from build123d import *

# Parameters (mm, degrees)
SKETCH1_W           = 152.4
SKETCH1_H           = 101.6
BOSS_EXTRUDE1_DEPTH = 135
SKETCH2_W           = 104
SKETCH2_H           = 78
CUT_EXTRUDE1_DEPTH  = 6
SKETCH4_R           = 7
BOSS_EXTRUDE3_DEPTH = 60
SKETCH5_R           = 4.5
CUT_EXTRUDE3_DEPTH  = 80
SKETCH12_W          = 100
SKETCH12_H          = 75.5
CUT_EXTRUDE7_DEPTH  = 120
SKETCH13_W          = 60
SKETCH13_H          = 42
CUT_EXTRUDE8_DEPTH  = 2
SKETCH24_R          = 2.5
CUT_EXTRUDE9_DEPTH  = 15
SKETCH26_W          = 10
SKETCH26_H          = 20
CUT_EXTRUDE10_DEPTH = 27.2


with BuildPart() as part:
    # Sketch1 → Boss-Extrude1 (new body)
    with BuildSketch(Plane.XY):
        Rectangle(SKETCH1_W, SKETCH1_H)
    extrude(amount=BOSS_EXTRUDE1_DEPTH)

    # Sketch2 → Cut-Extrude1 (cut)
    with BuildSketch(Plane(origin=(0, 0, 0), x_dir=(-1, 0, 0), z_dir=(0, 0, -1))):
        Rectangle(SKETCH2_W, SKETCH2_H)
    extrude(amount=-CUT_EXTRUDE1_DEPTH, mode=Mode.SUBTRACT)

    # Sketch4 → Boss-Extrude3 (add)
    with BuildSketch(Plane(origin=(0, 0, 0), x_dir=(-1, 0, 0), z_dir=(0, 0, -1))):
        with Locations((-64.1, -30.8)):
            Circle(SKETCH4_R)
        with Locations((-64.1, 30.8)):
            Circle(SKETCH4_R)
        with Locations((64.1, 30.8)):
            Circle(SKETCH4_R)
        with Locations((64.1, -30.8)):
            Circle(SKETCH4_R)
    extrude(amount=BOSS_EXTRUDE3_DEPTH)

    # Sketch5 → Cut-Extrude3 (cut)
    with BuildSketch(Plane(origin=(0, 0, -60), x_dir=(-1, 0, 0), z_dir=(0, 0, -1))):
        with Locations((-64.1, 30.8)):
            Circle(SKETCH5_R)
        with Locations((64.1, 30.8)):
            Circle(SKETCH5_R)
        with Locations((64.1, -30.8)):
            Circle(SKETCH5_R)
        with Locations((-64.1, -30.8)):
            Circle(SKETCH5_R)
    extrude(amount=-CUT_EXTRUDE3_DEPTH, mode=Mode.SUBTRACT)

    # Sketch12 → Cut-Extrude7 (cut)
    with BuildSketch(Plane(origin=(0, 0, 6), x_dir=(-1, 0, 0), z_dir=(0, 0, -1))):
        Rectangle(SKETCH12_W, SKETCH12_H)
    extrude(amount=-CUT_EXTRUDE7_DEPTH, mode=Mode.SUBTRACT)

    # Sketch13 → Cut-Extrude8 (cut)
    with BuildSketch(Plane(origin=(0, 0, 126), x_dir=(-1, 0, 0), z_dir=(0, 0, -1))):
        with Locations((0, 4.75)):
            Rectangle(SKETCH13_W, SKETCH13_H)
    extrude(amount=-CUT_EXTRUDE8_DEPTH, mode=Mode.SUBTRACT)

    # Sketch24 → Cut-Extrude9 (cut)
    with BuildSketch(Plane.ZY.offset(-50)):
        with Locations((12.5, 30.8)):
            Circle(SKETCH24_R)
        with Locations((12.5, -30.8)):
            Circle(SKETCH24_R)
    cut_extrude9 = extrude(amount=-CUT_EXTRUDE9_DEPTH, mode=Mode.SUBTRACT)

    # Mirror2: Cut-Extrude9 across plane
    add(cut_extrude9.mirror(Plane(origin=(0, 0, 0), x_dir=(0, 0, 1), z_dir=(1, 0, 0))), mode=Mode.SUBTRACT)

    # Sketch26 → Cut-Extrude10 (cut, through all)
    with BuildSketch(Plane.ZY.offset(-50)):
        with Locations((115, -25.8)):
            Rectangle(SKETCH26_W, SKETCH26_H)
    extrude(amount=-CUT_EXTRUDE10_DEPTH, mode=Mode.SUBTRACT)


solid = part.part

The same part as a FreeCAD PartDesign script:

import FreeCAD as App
import Part
import Sketcher

V = App.Vector
Q = App.Units.Quantity


def add_polygon(sketch, points):
    """Adds a closed chain of lines whose ends are joined by coincident constraints."""
    first, n = sketch.GeometryCount, len(points)
    for a, b in zip(points, points[1:] + points[:1]):
        sketch.addGeometry(Part.LineSegment(App.Vector(*a, 0), App.Vector(*b, 0)), False)
    for i in range(n):
        sketch.addConstraint(Sketcher.Constraint("Coincident", first + i, 2, first + (i + 1) % n, 1))

doc = App.newDocument("Part")
body = doc.addObject("PartDesign::Body", "Body")

# Sketch on XY plane
sketch1 = doc.addObject("Sketcher::SketchObject", "Sketch")
body.addObject(sketch1)
sketch1.AttachmentSupport = (doc.XY_Plane, [""])
sketch1.MapMode = "FlatFace"
add_polygon(sketch1, [(-76.2, 50.8), (-76.2, -50.8), (76.2, -50.8), (76.2, 50.8)])  # lines 0-3
sketch1.addConstraint(Sketcher.Constraint("Vertical", 0))
sketch1.addConstraint(Sketcher.Constraint("Horizontal", 1))
sketch1.addConstraint(Sketcher.Constraint("Vertical", 2))
sketch1.addConstraint(Sketcher.Constraint("Horizontal", 3))
sketch1.addConstraint(Sketcher.Constraint("Symmetric", 0, 2, 2, 2, -1, 1))
sketch1.addConstraint(Sketcher.Constraint("DistanceX", 1, 1, 1, 2, Q("152.4 mm")))
sketch1.addConstraint(Sketcher.Constraint("DistanceY", 0, 2, 0, 1, Q("101.6 mm")))
pad1 = doc.addObject("PartDesign::Pad", "Pad")
body.addObject(pad1)
pad1.Profile = sketch1
pad1.Length = 135

# Sketch on XY plane
sketch2 = doc.addObject("Sketcher::SketchObject", "Sketch001")
body.addObject(sketch2)
sketch2.AttachmentSupport = (doc.XY_Plane, [""])
sketch2.MapMode = "FlatFace"
add_polygon(sketch2, [(52, 39), (52, -39), (-52, -39), (-52, 39)])  # lines 0-3
sketch2.addConstraint(Sketcher.Constraint("Vertical", 0))
sketch2.addConstraint(Sketcher.Constraint("Horizontal", 1))
sketch2.addConstraint(Sketcher.Constraint("Vertical", 2))
sketch2.addConstraint(Sketcher.Constraint("Horizontal", 3))
sketch2.addConstraint(Sketcher.Constraint("Symmetric", 0, 2, 2, 2, -1, 1))
sketch2.addConstraint(Sketcher.Constraint("DistanceX", 1, 2, 1, 1, Q("104 mm")))
sketch2.addConstraint(Sketcher.Constraint("DistanceY", 0, 2, 0, 1, Q("78 mm")))
pocket1 = doc.addObject("PartDesign::Pocket", "Pocket")
body.addObject(pocket1)
pocket1.Profile = sketch2
pocket1.Length = 6
pocket1.Reversed = True

# Sketch on XY plane
sketch3 = doc.addObject("Sketcher::SketchObject", "Sketch002")
body.addObject(sketch3)
sketch3.AttachmentSupport = (doc.XY_Plane, [""])
sketch3.MapMode = "FlatFace"
sketch3.addGeometry(Part.Circle(V(64.1, -30.8, 0), V(0, 0, 1), 7), False)
sketch3.addGeometry(Part.Circle(V(64.1, 30.8, 0), V(0, 0, 1), 7), False)
sketch3.addGeometry(Part.Circle(V(-64.1, 30.8, 0), V(0, 0, 1), 7), False)
sketch3.addGeometry(Part.Circle(V(-64.1, -30.8, 0), V(0, 0, 1), 7), False)
sketch3.addConstraint(Sketcher.Constraint("Equal", 0, 1))
sketch3.addConstraint(Sketcher.Constraint("Equal", 1, 2))
sketch3.addConstraint(Sketcher.Constraint("Equal", 2, 3))
sketch3.addConstraint(Sketcher.Constraint("Symmetric", 0, 3, 2, 3, -1, 1))
sketch3.addConstraint(Sketcher.Constraint("Symmetric", 1, 3, 3, 3, -1, 1))
sketch3.addConstraint(Sketcher.Constraint("Symmetric", 1, 3, 2, 3, -2))
sketch3.addConstraint(Sketcher.Constraint("Diameter", 0, Q("14 mm")))
sketch3.addConstraint(Sketcher.Constraint("DistanceX", -1, 1, 0, 3, Q("64.1 mm")))
sketch3.addConstraint(Sketcher.Constraint("DistanceY", 0, 3, -1, 1, Q("30.8 mm")))
pad2 = doc.addObject("PartDesign::Pad", "Pad001")
body.addObject(pad2)
pad2.Profile = sketch3
pad2.Length = 60
pad2.Reversed = True

# Sketch on XY plane
sketch4 = doc.addObject("Sketcher::SketchObject", "Sketch003")
body.addObject(sketch4)
sketch4.AttachmentSupport = (doc.XY_Plane, [""])
sketch4.MapMode = "FlatFace"
sketch4.AttachmentOffset = App.Placement(V(0, 0, -60), App.Rotation())
sketch4.addGeometry(Part.Circle(V(64.1, 30.8, 0), V(0, 0, 1), 4.5), False)
sketch4.addGeometry(Part.Circle(V(-64.1, 30.8, 0), V(0, 0, 1), 4.5), False)
sketch4.addGeometry(Part.Circle(V(-64.1, -30.8, 0), V(0, 0, 1), 4.5), False)
sketch4.addGeometry(Part.Circle(V(64.1, -30.8, 0), V(0, 0, 1), 4.5), False)
sketch4.addConstraint(Sketcher.Constraint("Equal", 0, 1))
sketch4.addConstraint(Sketcher.Constraint("Equal", 1, 2))
sketch4.addConstraint(Sketcher.Constraint("Equal", 2, 3))
sketch4.addConstraint(Sketcher.Constraint("Symmetric", 0, 3, 2, 3, -1, 1))
sketch4.addConstraint(Sketcher.Constraint("Symmetric", 1, 3, 3, 3, -1, 1))
sketch4.addConstraint(Sketcher.Constraint("Symmetric", 0, 3, 1, 3, -2))
sketch4.addConstraint(Sketcher.Constraint("Diameter", 0, Q("9 mm")))
sketch4.addConstraint(Sketcher.Constraint("DistanceX", -1, 1, 0, 3, Q("64.1 mm")))
sketch4.addConstraint(Sketcher.Constraint("DistanceY", -1, 1, 0, 3, Q("30.8 mm")))
pocket2 = doc.addObject("PartDesign::Pocket", "Pocket001")
body.addObject(pocket2)
pocket2.Profile = sketch4
pocket2.Length = 80
pocket2.Reversed = True

# Sketch on XY plane
sketch5 = doc.addObject("Sketcher::SketchObject", "Sketch004")
body.addObject(sketch5)
sketch5.AttachmentSupport = (doc.XY_Plane, [""])
sketch5.MapMode = "FlatFace"
sketch5.AttachmentOffset = App.Placement(V(0, 0, 6), App.Rotation())
add_polygon(sketch5, [(50, 37.75), (50, -37.75), (-50, -37.75), (-50, 37.75)])  # lines 0-3
sketch5.addConstraint(Sketcher.Constraint("Vertical", 0))
sketch5.addConstraint(Sketcher.Constraint("Horizontal", 1))
sketch5.addConstraint(Sketcher.Constraint("Vertical", 2))
sketch5.addConstraint(Sketcher.Constraint("Horizontal", 3))
sketch5.addConstraint(Sketcher.Constraint("Symmetric", 0, 2, 2, 2, -1, 1))
sketch5.addConstraint(Sketcher.Constraint("DistanceX", 1, 2, 1, 1, Q("100 mm")))
sketch5.addConstraint(Sketcher.Constraint("DistanceY", 0, 2, 0, 1, Q("75.5 mm")))
pocket3 = doc.addObject("PartDesign::Pocket", "Pocket002")
body.addObject(pocket3)
pocket3.Profile = sketch5
pocket3.Length = 120
pocket3.Reversed = True

# Sketch on XY plane
sketch6 = doc.addObject("Sketcher::SketchObject", "Sketch005")
body.addObject(sketch6)
sketch6.AttachmentSupport = (doc.XY_Plane, [""])
sketch6.MapMode = "FlatFace"
sketch6.AttachmentOffset = App.Placement(V(0, 0, 126), App.Rotation())
add_polygon(sketch6, [(30, 25.75), (30, -16.25), (-30, -16.25), (-30, 25.75)])  # lines 0-3
sketch6.addConstraint(Sketcher.Constraint("Vertical", 0))
sketch6.addConstraint(Sketcher.Constraint("Horizontal", 1))
sketch6.addConstraint(Sketcher.Constraint("Vertical", 2))
sketch6.addConstraint(Sketcher.Constraint("Horizontal", 3))
sketch6.addConstraint(Sketcher.Constraint("DistanceX", 1, 2, 1, 1, Q("60 mm")))
sketch6.addConstraint(Sketcher.Constraint("DistanceY", 0, 2, 0, 1, Q("42 mm")))
sketch6.addConstraint(Sketcher.Constraint("DistanceX", -1, 1, 0, 2, Q("30 mm")))
sketch6.addConstraint(Sketcher.Constraint("DistanceY", 0, 2, -1, 1, Q("16.25 mm")))
pocket4 = doc.addObject("PartDesign::Pocket", "Pocket003")
body.addObject(pocket4)
pocket4.Profile = sketch6
pocket4.Length = 2
pocket4.Reversed = True

# Sketch on YZ plane
sketch7 = doc.addObject("Sketcher::SketchObject", "Sketch006")
body.addObject(sketch7)
sketch7.AttachmentSupport = (doc.YZ_Plane, [""])
sketch7.MapMode = "FlatFace"
sketch7.AttachmentOffset = App.Placement(V(0, 0, 50), App.Rotation())
sketch7.addGeometry(Part.Circle(V(30.8, 12.5, 0), V(0, 0, 1), 2.5), False)
sketch7.addGeometry(Part.Circle(V(-30.8, 12.5, 0), V(0, 0, 1), 2.5), False)
sketch7.addConstraint(Sketcher.Constraint("Equal", 0, 1))
sketch7.addConstraint(Sketcher.Constraint("Symmetric", 0, 3, 1, 3, -2))
sketch7.addConstraint(Sketcher.Constraint("Diameter", 0, Q("5 mm")))
sketch7.addConstraint(Sketcher.Constraint("DistanceX", -1, 1, 0, 3, Q("30.8 mm")))
sketch7.addConstraint(Sketcher.Constraint("DistanceY", -1, 1, 0, 3, Q("12.5 mm")))
pocket5 = doc.addObject("PartDesign::Pocket", "Pocket004")
body.addObject(pocket5)
pocket5.Profile = sketch7
pocket5.Length = 15
pocket5.Reversed = True
doc.recompute()

mirrored = doc.addObject("PartDesign::Mirrored", "Mirrored")
body.addObject(mirrored)
mirrored.Originals = [pocket5]
mirrored.MirrorPlane = (doc.YZ_Plane, [""])
body.Tip = mirrored

# Sketch on YZ plane
sketch8 = doc.addObject("Sketcher::SketchObject", "Sketch007")
body.addObject(sketch8)
sketch8.AttachmentSupport = (doc.YZ_Plane, [""])
sketch8.MapMode = "FlatFace"
sketch8.AttachmentOffset = App.Placement(V(0, 0, 50), App.Rotation())
add_polygon(sketch8, [(-15.8, 110), (-35.8, 110), (-35.8, 120), (-15.8, 120)])  # lines 0-3
sketch8.addConstraint(Sketcher.Constraint("Horizontal", 0))
sketch8.addConstraint(Sketcher.Constraint("Vertical", 1))
sketch8.addConstraint(Sketcher.Constraint("Horizontal", 2))
sketch8.addConstraint(Sketcher.Constraint("Vertical", 3))
sketch8.addConstraint(Sketcher.Constraint("DistanceX", 0, 2, 0, 1, Q("20 mm")))
sketch8.addConstraint(Sketcher.Constraint("DistanceY", 1, 1, 1, 2, Q("10 mm")))
sketch8.addConstraint(Sketcher.Constraint("DistanceY", -1, 1, 0, 2, Q("110 mm")))
sketch8.addConstraint(Sketcher.Constraint("DistanceX", 0, 2, -1, 1, Q("35.8 mm")))
pocket6 = doc.addObject("PartDesign::Pocket", "Pocket005")
body.addObject(pocket6)
pocket6.Profile = sketch8
pocket6.Type = "ThroughAll"
pocket6.Reversed = True

doc.recompute()
